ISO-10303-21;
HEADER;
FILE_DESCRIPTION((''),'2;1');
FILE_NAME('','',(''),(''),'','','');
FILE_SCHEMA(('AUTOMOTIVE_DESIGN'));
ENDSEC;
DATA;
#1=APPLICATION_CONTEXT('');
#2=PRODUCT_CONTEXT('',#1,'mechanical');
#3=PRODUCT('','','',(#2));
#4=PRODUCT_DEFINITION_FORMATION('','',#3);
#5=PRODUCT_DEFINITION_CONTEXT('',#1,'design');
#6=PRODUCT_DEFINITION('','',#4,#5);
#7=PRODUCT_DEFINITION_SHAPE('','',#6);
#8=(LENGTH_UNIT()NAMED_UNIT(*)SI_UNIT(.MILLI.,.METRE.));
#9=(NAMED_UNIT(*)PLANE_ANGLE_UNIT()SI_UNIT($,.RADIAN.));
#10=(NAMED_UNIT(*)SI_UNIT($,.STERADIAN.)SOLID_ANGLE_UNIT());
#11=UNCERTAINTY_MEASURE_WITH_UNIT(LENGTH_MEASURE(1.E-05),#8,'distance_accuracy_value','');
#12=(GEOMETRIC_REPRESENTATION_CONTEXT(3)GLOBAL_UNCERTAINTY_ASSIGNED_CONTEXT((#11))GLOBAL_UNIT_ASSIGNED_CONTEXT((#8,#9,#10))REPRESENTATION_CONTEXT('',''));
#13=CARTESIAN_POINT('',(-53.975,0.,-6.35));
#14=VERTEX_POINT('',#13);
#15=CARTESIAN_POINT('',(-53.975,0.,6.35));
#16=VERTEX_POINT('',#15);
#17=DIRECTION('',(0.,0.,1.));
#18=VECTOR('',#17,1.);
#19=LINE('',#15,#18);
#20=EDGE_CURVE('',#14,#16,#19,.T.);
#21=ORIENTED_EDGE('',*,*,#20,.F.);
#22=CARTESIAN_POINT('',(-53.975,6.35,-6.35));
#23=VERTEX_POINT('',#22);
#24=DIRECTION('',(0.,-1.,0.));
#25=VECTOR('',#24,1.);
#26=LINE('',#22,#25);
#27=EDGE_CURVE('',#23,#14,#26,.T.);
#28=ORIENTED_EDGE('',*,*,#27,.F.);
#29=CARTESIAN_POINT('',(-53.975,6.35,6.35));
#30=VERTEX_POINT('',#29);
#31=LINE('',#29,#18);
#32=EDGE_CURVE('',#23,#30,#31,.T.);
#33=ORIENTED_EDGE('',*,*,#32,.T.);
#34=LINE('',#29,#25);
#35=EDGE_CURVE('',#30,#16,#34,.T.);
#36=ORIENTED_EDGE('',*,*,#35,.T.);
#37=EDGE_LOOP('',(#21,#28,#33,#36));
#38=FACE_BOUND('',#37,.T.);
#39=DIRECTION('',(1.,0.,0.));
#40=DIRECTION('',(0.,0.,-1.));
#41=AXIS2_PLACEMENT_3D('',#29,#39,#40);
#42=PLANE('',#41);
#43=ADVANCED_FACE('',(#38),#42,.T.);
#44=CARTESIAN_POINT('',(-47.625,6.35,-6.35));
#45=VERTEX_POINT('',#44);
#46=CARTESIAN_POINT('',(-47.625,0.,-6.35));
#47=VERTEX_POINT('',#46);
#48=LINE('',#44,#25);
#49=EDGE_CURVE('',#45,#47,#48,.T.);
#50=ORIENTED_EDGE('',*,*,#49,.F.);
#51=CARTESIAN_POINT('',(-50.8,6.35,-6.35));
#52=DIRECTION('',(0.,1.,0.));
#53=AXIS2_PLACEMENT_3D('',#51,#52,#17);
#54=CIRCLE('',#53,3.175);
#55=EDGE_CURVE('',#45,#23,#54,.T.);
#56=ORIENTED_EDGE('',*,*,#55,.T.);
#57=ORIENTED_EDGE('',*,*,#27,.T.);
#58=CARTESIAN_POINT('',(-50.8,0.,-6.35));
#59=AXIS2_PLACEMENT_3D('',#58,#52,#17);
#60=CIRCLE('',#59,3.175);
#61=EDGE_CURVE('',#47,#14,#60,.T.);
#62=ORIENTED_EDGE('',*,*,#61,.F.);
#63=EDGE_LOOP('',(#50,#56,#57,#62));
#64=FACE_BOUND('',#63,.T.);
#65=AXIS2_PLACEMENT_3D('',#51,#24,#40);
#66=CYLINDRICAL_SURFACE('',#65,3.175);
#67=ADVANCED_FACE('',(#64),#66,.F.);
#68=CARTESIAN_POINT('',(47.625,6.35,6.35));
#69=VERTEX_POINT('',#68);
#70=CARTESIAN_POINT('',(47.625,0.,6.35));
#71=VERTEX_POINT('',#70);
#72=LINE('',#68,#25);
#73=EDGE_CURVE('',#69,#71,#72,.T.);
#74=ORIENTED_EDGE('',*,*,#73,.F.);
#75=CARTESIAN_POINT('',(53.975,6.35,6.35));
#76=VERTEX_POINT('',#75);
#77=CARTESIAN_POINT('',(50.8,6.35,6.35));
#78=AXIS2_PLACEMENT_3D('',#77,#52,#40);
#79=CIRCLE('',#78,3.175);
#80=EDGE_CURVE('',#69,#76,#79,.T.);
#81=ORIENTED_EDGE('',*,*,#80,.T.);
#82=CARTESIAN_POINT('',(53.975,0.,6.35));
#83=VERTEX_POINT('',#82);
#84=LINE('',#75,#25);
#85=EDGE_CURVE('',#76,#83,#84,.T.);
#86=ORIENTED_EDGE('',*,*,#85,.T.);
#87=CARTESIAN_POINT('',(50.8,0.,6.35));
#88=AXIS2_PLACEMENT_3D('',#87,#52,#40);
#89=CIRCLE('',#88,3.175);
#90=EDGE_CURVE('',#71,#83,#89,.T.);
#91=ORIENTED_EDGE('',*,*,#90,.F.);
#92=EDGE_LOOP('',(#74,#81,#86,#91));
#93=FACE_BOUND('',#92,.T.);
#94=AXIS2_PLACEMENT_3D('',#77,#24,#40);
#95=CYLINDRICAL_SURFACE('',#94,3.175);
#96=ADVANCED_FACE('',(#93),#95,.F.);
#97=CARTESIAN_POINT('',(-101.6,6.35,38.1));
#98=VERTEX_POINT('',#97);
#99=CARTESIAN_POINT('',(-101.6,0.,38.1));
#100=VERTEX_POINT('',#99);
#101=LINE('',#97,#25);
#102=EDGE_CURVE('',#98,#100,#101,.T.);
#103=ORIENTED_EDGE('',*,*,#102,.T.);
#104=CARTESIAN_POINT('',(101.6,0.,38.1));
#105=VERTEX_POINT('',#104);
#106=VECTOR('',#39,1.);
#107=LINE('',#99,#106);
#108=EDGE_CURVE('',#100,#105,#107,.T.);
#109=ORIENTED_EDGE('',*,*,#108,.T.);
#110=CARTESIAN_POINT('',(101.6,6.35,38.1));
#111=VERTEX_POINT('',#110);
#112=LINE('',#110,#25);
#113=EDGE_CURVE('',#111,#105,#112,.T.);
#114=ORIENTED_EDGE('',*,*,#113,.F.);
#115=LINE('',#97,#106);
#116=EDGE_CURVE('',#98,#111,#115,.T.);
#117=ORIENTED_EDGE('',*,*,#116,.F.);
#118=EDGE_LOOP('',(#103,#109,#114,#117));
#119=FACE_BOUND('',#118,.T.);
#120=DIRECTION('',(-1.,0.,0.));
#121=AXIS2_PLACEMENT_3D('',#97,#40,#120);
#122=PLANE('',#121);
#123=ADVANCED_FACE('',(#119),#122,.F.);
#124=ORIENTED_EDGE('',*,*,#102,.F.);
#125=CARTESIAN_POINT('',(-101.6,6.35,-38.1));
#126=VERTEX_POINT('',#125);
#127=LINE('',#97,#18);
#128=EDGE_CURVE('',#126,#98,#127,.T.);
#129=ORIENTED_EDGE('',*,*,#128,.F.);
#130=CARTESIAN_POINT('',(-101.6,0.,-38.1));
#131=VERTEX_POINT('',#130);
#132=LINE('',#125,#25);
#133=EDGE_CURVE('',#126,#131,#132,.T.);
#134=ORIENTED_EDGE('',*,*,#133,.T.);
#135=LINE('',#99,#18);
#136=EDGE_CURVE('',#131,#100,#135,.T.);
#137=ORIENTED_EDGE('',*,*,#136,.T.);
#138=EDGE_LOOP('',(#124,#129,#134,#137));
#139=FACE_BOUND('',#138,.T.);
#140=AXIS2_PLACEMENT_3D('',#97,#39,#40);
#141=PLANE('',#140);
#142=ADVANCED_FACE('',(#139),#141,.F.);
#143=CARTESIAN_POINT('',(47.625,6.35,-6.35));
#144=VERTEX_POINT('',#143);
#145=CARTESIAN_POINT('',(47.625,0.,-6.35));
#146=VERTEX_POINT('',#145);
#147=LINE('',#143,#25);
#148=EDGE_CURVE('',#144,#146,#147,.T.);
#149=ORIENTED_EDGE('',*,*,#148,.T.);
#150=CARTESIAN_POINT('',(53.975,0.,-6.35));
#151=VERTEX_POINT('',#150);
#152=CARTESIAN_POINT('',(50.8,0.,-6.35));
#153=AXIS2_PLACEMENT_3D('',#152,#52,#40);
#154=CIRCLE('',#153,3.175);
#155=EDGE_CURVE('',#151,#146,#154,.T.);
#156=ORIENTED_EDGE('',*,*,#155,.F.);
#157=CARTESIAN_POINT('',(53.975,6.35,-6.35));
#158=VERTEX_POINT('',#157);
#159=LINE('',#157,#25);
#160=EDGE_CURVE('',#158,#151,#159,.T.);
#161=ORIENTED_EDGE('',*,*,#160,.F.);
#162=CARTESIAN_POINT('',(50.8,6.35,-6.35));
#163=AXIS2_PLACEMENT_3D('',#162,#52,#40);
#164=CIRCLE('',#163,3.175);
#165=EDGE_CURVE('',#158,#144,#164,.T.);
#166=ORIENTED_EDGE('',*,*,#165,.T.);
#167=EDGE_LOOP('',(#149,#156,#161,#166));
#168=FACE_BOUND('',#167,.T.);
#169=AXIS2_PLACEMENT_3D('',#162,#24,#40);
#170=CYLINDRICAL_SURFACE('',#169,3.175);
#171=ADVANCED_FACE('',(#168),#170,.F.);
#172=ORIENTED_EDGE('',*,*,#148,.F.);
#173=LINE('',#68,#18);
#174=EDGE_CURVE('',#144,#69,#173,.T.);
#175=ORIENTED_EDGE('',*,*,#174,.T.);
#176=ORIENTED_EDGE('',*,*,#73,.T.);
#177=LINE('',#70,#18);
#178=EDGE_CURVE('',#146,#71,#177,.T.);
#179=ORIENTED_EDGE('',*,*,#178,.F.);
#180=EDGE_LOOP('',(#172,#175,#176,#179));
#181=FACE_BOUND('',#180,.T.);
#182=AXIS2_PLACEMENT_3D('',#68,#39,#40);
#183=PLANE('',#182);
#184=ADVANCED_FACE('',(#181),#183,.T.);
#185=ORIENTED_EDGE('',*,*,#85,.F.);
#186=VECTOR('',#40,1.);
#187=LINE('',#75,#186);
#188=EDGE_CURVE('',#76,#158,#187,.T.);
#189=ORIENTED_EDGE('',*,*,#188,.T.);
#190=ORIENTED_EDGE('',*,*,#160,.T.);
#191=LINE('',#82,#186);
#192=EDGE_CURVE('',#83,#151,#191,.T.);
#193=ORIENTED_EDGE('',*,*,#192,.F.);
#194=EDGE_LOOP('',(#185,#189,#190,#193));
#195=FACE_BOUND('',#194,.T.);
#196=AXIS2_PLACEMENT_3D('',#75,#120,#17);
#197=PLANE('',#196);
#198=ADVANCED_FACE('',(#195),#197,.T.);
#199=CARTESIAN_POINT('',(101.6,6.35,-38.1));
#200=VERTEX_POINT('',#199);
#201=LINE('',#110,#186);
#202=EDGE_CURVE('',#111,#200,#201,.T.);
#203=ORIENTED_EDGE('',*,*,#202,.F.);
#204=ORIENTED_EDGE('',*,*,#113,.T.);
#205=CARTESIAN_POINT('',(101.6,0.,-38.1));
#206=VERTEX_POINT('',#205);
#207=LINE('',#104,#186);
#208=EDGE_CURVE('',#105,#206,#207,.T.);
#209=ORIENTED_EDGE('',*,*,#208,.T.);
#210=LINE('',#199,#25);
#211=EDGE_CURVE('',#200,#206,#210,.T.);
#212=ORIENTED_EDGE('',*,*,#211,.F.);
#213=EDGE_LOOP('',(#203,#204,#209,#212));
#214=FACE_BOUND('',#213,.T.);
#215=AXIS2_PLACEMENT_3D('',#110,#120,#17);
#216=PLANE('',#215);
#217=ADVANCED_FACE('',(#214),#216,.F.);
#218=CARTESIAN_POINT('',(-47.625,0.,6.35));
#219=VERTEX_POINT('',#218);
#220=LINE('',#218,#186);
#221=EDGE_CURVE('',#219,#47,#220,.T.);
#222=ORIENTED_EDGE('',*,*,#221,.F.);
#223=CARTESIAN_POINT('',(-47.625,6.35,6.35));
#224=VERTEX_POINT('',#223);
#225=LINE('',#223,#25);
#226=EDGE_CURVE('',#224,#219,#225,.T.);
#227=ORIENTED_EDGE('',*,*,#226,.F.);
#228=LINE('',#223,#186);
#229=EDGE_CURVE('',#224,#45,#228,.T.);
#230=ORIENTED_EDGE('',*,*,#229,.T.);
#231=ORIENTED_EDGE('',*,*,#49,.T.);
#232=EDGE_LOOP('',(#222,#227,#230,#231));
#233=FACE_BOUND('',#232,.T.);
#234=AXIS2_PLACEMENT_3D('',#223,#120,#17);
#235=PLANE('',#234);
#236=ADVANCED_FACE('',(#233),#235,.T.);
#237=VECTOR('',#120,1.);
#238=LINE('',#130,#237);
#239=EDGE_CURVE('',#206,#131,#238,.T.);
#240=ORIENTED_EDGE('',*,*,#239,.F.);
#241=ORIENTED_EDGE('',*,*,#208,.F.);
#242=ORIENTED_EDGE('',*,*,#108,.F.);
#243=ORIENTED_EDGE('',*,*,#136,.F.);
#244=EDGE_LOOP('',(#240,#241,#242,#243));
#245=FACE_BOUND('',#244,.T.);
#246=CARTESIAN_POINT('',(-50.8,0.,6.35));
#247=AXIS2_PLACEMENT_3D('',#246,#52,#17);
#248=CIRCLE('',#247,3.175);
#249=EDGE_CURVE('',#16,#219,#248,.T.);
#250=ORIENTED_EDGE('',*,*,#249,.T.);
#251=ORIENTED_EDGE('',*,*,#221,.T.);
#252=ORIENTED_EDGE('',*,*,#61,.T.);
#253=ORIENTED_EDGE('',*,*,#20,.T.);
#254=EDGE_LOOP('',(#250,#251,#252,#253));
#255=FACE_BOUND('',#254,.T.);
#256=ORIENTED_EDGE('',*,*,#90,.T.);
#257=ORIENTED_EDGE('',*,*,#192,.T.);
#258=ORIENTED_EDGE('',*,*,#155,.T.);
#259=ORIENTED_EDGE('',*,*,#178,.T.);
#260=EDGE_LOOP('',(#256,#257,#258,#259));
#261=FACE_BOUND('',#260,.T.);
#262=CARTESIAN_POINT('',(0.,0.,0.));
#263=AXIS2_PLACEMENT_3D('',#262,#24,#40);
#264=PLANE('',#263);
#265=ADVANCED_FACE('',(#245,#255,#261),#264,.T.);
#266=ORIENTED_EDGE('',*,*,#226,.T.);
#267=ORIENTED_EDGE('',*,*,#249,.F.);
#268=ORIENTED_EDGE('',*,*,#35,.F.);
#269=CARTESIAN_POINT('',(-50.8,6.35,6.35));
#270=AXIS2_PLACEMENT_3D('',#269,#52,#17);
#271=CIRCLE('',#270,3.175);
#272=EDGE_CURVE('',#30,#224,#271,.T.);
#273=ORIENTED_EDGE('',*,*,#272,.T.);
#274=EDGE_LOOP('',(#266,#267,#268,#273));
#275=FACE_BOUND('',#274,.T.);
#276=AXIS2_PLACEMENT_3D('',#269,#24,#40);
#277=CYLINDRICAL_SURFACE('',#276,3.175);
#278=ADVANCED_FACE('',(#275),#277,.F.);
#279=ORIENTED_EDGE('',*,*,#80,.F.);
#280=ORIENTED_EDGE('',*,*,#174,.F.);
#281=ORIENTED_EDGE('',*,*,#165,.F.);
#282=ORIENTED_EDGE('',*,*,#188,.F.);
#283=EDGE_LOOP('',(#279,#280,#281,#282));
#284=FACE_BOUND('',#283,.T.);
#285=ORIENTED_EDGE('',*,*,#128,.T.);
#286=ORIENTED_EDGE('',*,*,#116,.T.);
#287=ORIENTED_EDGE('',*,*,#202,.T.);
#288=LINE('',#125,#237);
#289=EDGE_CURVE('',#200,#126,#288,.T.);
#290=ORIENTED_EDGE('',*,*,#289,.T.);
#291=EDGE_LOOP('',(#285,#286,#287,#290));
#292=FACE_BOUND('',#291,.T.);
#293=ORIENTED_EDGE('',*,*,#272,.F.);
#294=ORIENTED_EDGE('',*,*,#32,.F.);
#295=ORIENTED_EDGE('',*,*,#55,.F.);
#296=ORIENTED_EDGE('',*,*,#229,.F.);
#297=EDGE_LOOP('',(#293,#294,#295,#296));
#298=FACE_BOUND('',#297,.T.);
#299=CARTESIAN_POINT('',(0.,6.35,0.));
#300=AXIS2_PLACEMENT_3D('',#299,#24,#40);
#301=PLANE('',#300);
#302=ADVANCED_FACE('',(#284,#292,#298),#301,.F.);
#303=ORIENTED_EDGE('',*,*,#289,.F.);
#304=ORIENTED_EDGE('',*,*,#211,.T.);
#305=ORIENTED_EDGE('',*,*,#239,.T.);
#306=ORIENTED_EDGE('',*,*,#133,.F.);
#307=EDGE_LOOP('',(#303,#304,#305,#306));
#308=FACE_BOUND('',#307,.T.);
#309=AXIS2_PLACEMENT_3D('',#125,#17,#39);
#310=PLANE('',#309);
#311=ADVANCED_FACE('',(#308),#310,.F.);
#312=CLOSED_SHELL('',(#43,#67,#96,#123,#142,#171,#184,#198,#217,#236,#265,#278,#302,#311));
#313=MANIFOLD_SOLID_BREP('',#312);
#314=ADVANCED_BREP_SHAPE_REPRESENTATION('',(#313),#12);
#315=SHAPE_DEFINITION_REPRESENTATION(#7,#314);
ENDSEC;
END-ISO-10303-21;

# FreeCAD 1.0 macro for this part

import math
import FreeCAD as App
import Part
import Sketcher
from FreeCAD import Vector
Q = App.Units.Quantity

doc = App.newDocument("Part")
body = doc.addObject("PartDesign::Body", "Body")

sketch1 = body.newObject("Sketcher::SketchObject", "Sketch")
sketch1.AttachmentSupport = (doc.getObject("XZ_Plane"), [""])
sketch1.MapMode = "FlatFace"
sketch1.addGeometry([
    Part.LineSegment(Vector(-101.6, -38.1, 0), Vector(-101.6, 38.1, 0)),
    Part.LineSegment(Vector(-101.6, 38.1, 0), Vector(101.6, 38.1, 0)),
    Part.LineSegment(Vector(101.6, 38.1, 0), Vector(101.6, -38.1, 0)),
    Part.LineSegment(Vector(101.6, -38.1, 0), Vector(-101.6, -38.1, 0)),
    Part.ArcOfCircle(Part.Circle(Vector(-50.8, 6.35, 0), Vector(0, 0, 1), 3.175), math.radians(0), math.radians(180)),
    Part.LineSegment(Vector(-53.975, 6.35, 0), Vector(-53.975, -6.35, 0)),
    Part.ArcOfCircle(Part.Circle(Vector(-50.8, -6.35, 0), Vector(0, 0, 1), 3.175), math.radians(180), math.radians(360)),
    Part.LineSegment(Vector(-47.625, -6.35, 0), Vector(-47.625, 6.35, 0)),
    Part.LineSegment(Vector(53.975, -6.35, 0), Vector(53.975, 6.35, 0)),
    Part.ArcOfCircle(Part.Circle(Vector(50.8, 6.35, 0), Vector(0, 0, 1), 3.175), math.radians(0), math.radians(180)),
    Part.LineSegment(Vector(47.625, 6.35, 0), Vector(47.625, -6.35, 0)),
    Part.ArcOfCircle(Part.Circle(Vector(50.8, -6.35, 0), Vector(0, 0, 1), 3.175), math.radians(180), math.radians(360)),
], False)
sketch1.addConstraint([
    Sketcher.Constraint("Coincident", 0, 2, 1, 1),
    Sketcher.Constraint("Coincident", 1, 2, 2, 1),
    Sketcher.Constraint("Coincident", 2, 2, 3, 1),
    Sketcher.Constraint("Coincident", 3, 2, 0, 1),
    Sketcher.Constraint("Tangent", 4, 2, 5, 1),
    Sketcher.Constraint("Tangent", 5, 2, 6, 1),
    Sketcher.Constraint("Tangent", 6, 2, 7, 1),
    Sketcher.Constraint("Tangent", 7, 2, 4, 1),
    Sketcher.Constraint("Tangent", 8, 2, 9, 1),
    Sketcher.Constraint("Tangent", 9, 2, 10, 1),
    Sketcher.Constraint("Tangent", 10, 2, 11, 1),
    Sketcher.Constraint("Tangent", 11, 2, 8, 1),
    Sketcher.Constraint("Vertical", 0),
    Sketcher.Constraint("Horizontal", 1),
    Sketcher.Constraint("Vertical", 2),
    Sketcher.Constraint("Horizontal", 3),
    Sketcher.Constraint("Vertical", 5),
    Sketcher.Constraint("Vertical", 7),
    Sketcher.Constraint("Vertical", 8),
    Sketcher.Constraint("Vertical", 10),
    Sketcher.Constraint("Equal", 6, 9),
    Sketcher.Constraint("Symmetric", 6, 3, 9, 3, -1, 1),
    Sketcher.Constraint("Symmetric", 0, 2, 2, 2, -1, 1),
    Sketcher.Constraint("Horizontal", 4, 3, 9, 3),
    Sketcher.Constraint("Horizontal", 6, 3, 11, 3),
    Sketcher.Constraint("DistanceX", 1, 1, 1, 2, Q("8 in")),
    Sketcher.Constraint("DistanceY", 0, 1, 0, 2, Q("3 in")),
    Sketcher.Constraint("DistanceY", 5, 2, 5, 1, Q("0.5 in")),
    Sketcher.Constraint("DistanceX", 4, 3, -1, 1, Q("2 in")),
    Sketcher.Constraint("Radius", 4, Q("0.125 in")),
])
pad1 = body.newObject("PartDesign::Pad", "Pad")
pad1.Profile = sketch1
pad1.Length = Q("0.25 in")
pad1.Reversed = True

doc.recompute()
